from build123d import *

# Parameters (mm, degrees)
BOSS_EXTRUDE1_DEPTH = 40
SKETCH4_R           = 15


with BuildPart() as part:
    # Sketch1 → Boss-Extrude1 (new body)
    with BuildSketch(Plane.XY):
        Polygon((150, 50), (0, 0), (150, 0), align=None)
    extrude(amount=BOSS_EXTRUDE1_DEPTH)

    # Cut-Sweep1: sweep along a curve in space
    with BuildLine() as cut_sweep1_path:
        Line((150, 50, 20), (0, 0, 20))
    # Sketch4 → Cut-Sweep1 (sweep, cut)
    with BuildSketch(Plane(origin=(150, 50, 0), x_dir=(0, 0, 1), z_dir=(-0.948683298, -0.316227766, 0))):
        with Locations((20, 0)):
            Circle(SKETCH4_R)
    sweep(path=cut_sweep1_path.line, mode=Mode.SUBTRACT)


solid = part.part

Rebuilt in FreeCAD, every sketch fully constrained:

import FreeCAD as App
import Part
import Sketcher

doc = App.newDocument("Part")
body = doc.addObject("PartDesign::Body", "Body")

# Sketch on XY plane
sketch1 = doc.addObject("Sketcher::SketchObject", "Sketch")
body.addObject(sketch1)
sketch1.AttachmentSupport = (doc.XY_Plane, [""])
sketch1.MapMode = "FlatFace"
sketch1.addGeometry(Part.LineSegment(App.Vector(150, 50, 0), App.Vector(0, 0, 0)), False)
sketch1.addGeometry(Part.LineSegment(App.Vector(0, 0, 0), App.Vector(150, 0, 0)), False)
sketch1.addGeometry(Part.LineSegment(App.Vector(150, 0, 0), App.Vector(150, 50, 0)), False)
sketch1.addConstraint(Sketcher.Constraint("Coincident", 0, 2, 1, 1))
sketch1.addConstraint(Sketcher.Constraint("Coincident", 1, 2, 2, 1))
sketch1.addConstraint(Sketcher.Constraint("Coincident", 2, 2, 0, 1))
sketch1.addConstraint(Sketcher.Constraint("Horizontal", 1))
sketch1.addConstraint(Sketcher.Constraint("Vertical", 2))
sketch1.addConstraint(Sketcher.Constraint("Coincident", 0, 2, -1, 1))
sketch1.addConstraint(Sketcher.Constraint("DistanceX", 1, 1, 1, 2, 150.0))
sketch1.addConstraint(Sketcher.Constraint("DistanceY", 2, 1, 2, 2, 50.0))
pad1 = doc.addObject("PartDesign::Pad", "Pad")
body.addObject(pad1)
pad1.Profile = sketch1
pad1.Length = 40

# Sketch on an angled plane
sketch2 = doc.addObject("Sketcher::SketchObject", "Sketch001")
body.addObject(sketch2)
sketch2.Placement = App.Placement(App.Vector(150, 50, 0), App.Rotation(App.Vector(0, 0, 1), App.Vector(-0.316227766, 0.948683298, 0), App.Vector(-0.948683298, -0.316227766, 0), "ZXY"))
sketch2.addGeometry(Part.Circle(App.Vector(20, 0, 0), App.Vector(0, 0, 1), 15), False)
sketch2.addConstraint(Sketcher.Constraint("PointOnObject", 0, 3, -1))
sketch2.addConstraint(Sketcher.Constraint("Diameter", 0, 30.0))
sketch2.addConstraint(Sketcher.Constraint("DistanceX", -1, 1, 0, 3, 20.0))

# Sketch on an angled plane
sketch3 = doc.addObject("Sketcher::SketchObject", "Sketch002")
body.addObject(sketch3)
sketch3.Placement = App.Placement(App.Vector(0, 0, 0), App.Rotation(App.Vector(-0.948683298, -0.316227766, 0), App.Vector(0, 0, 1), App.Vector(-0.316227766, 0.948683298, 0), "ZXY"))
sketch3.addGeometry(Part.LineSegment(App.Vector(-158.113883, 20, 0), App.Vector(0, 20, 0)), False)
sketch3.addConstraint(Sketcher.Constraint("Horizontal", 0))
sketch3.addConstraint(Sketcher.Constraint("PointOnObject", 0, 2, -2))
sketch3.addConstraint(Sketcher.Constraint("DistanceY", -1, 1, 0, 1, 20.0))
sketch3.addConstraint(Sketcher.Constraint("DistanceX", 0, 1, 0, 2, 158.113883))
doc.recompute()

subtractivepipe = doc.addObject("PartDesign::SubtractivePipe", "SubtractivePipe")
body.addObject(subtractivepipe)
subtractivepipe.Profile = sketch2
subtractivepipe.Spine = (sketch3, ["Edge1"])

doc.recompute()
